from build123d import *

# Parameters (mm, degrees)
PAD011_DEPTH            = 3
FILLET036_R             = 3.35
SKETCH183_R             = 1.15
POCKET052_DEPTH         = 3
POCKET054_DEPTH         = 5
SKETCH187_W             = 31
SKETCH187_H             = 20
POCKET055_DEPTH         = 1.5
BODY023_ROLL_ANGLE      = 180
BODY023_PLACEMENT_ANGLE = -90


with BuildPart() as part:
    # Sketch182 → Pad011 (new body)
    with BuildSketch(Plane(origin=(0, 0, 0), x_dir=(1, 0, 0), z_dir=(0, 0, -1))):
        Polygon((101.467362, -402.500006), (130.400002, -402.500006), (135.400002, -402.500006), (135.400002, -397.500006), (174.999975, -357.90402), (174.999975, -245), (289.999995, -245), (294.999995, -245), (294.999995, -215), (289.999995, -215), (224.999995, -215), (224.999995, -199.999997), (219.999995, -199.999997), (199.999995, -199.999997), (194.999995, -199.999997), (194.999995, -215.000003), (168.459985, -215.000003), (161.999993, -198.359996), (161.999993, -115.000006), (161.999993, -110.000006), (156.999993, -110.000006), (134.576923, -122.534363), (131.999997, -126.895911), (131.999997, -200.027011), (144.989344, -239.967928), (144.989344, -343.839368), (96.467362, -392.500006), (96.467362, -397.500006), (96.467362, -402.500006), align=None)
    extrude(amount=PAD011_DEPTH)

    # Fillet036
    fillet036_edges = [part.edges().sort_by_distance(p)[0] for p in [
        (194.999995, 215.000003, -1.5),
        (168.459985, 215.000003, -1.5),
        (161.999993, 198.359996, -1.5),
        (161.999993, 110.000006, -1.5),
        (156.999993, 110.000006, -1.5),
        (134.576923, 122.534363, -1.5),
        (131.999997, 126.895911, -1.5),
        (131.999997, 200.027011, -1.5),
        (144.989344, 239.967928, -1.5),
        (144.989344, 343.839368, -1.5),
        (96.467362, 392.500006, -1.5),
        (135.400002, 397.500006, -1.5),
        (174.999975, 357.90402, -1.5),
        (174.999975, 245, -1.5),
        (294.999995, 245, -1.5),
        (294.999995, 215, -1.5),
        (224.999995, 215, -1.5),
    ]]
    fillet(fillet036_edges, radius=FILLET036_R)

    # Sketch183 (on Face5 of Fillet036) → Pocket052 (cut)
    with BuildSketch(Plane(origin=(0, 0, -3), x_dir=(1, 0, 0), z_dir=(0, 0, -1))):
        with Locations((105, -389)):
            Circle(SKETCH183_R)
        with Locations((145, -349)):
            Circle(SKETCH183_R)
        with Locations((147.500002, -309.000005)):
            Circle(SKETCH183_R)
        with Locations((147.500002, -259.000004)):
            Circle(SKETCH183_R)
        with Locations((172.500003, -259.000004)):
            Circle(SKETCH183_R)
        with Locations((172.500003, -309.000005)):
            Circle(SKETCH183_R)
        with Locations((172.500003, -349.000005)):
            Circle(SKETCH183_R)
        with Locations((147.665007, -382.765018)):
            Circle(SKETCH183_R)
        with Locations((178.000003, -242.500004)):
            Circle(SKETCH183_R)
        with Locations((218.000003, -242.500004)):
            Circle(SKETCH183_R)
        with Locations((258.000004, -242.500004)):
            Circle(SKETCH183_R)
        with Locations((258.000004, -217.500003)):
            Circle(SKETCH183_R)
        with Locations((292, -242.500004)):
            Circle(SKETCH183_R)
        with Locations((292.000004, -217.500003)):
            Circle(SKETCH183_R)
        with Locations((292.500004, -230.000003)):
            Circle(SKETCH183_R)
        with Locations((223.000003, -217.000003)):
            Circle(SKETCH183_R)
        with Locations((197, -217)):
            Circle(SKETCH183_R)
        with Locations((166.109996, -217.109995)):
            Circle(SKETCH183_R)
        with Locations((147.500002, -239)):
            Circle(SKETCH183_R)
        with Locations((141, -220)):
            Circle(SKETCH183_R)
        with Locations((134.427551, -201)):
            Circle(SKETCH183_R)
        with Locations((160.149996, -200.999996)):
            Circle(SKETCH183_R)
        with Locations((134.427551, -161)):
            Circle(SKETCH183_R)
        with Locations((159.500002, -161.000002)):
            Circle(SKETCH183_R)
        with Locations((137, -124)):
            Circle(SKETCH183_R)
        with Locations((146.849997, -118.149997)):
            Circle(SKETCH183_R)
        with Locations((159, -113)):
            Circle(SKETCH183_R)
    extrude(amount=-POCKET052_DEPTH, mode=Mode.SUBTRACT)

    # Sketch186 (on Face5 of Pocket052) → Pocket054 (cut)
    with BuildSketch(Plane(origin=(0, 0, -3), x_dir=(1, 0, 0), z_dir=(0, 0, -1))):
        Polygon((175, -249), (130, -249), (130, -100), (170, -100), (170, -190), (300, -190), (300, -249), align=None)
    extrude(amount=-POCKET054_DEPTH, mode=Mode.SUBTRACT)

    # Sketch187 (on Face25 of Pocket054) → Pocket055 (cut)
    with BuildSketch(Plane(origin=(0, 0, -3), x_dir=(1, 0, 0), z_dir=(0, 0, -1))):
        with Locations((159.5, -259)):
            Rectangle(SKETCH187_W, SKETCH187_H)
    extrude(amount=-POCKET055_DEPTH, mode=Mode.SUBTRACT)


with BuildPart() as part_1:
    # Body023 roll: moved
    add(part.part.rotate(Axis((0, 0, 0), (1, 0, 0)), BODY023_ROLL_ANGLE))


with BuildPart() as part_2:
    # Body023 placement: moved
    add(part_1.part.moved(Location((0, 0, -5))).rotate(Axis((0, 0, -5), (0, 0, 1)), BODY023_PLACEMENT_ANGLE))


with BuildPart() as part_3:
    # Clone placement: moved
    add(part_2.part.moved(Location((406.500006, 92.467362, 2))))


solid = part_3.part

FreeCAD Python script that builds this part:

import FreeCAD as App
import Part
import Sketcher


def edges_at(feature, points):
    """Names of the edges that pass closest to the given points."""
    edges = feature.Shape.Edges
    near = lambda p: min(range(len(edges)), key=lambda i: edges[i].distToShape(Part.Vertex(*p))[0])
    return sorted({f"Edge{near(p) + 1}" for p in points})


def add_polygon(sketch, points):
    """Adds a closed chain of lines whose ends are joined by coincident constraints."""
    first, n = sketch.GeometryCount, len(points)
    for a, b in zip(points, points[1:] + points[:1]):
        sketch.addGeometry(Part.LineSegment(App.Vector(*a, 0), App.Vector(*b, 0)), False)
    for i in range(n):
        sketch.addConstraint(Sketcher.Constraint("Coincident", first + i, 2, first + (i + 1) % n, 1))

doc = App.newDocument("Part")
body = doc.addObject("PartDesign::Body", "Body")

# Sketch on XY plane
sketch1 = doc.addObject("Sketcher::SketchObject", "Sketch")
body.addObject(sketch1)
sketch1.AttachmentSupport = (doc.XY_Plane, [""])
sketch1.MapMode = "FlatFace"
add_polygon(sketch1, [(135, 403), (135, 398), (175, 358), (175, 245), (295, 245), (295, 215), (225, 215), (225, 200), (195, 200), (195, 215), (168, 215), (162, 198), (162, 110), (157, 110), (135, 123), (132, 127), (132, 200), (145, 240), (145, 344), (96, 393), (96, 403)])  # lines 0-20
sketch1.addConstraint(Sketcher.Constraint("Vertical", 0))
sketch1.addConstraint(Sketcher.Constraint("Vertical", 2))
sketch1.addConstraint(Sketcher.Constraint("Horizontal", 3))
sketch1.addConstraint(Sketcher.Constraint("Vertical", 4))
sketch1.addConstraint(Sketcher.Constraint("Horizontal", 5))
sketch1.addConstraint(Sketcher.Constraint("Vertical", 6))
sketch1.addConstraint(Sketcher.Constraint("Horizontal", 7))
sketch1.addConstraint(Sketcher.Constraint("Vertical", 8))
sketch1.addConstraint(Sketcher.Constraint("Horizontal", 9))
sketch1.addConstraint(Sketcher.Constraint("Vertical", 11))
sketch1.addConstraint(Sketcher.Constraint("Horizontal", 12))
sketch1.addConstraint(Sketcher.Constraint("Vertical", 15))
sketch1.addConstraint(Sketcher.Constraint("Vertical", 17))
sketch1.addConstraint(Sketcher.Constraint("Vertical", 19))
sketch1.addConstraint(Sketcher.Constraint("Horizontal", 20))
sketch1.addConstraint(Sketcher.Constraint("Equal", 12, 0))
sketch1.addConstraint(Sketcher.Constraint("Equal", 7, 4))
sketch1.addConstraint(Sketcher.Constraint("DistanceX", 5, 2, 5, 1, 70.0))
sketch1.addConstraint(Sketcher.Constraint("DistanceX", 7, 2, 7, 1, 30.0))
sketch1.addConstraint(Sketcher.Constraint("DistanceX", 12, 2, 12, 1, 5.0))
sketch1.addConstraint(Sketcher.Constraint("DistanceY", 19, 1, 19, 2, 10.0))
sketch1.addConstraint(Sketcher.Constraint("Distance", 1, 56.0))
sketch1.addConstraint(Sketcher.Constraint("Distance", 16, 42.0))
sketch1.addConstraint(Sketcher.Constraint("DistanceY", -1, 1, 2, 2, 245.0))
sketch1.addConstraint(Sketcher.Constraint("DistanceX", 15, 2, 7, 2, 62.999998))
sketch1.addConstraint(Sketcher.Constraint("DistanceX", -1, 1, 0, 2, 135.400002))
sketch1.addConstraint(Sketcher.Constraint("DistanceY", 10, 2, 7, 2, 1.640001))
sketch1.addConstraint(Sketcher.Constraint("DistanceY", 15, 1, 15, 2, 73.1311))
sketch1.addConstraint(Sketcher.Constraint("Distance", 13, 25.6886))
sketch1.addConstraint(Sketcher.Constraint("DistanceX", 3, 1, 3, 2, 120.00002))
sketch1.addConstraint(Sketcher.Constraint("DistanceX", 9, 2, 9, 1, 26.54001))
sketch1.addConstraint(Sketcher.Constraint("DistanceX", 20, 1, 20, 2, 38.93264))
sketch1.addConstraint(Sketcher.Constraint("DistanceY", 2, 2, 2, 1, 112.90402))
sketch1.addConstraint(Sketcher.Constraint("DistanceY", 11, 2, 11, 1, 88.35999))
sketch1.addConstraint(Sketcher.Constraint("DistanceY", 17, 1, 17, 2, 103.87144))
sketch1.addConstraint(Sketcher.Constraint("Distance", 14, 5.06593))
sketch1.addConstraint(Sketcher.Constraint("Distance", 18, 68.71856))
sketch1.addConstraint(Sketcher.Constraint("DistanceY", 6, 2, 6, 1, 15.000003))
sketch1.addConstraint(Sketcher.Constraint("DistanceY", 8, 1, 8, 2, 15.000006))
sketch1.addConstraint(Sketcher.Constraint("DistanceY", -1, 1, 14, 2, 126.895911))
sketch1.addConstraint(Sketcher.Constraint("DistanceX", 10, 2, 9, 2, 6.459992))
sketch1.addConstraint(Sketcher.Constraint("DistanceX", 0, 2, 17, 2, 9.589342))
pad1 = doc.addObject("PartDesign::Pad", "Pad")
body.addObject(pad1)
pad1.Profile = sketch1
pad1.Length = 3
pad1.Reversed = True
doc.recompute()

fillet = doc.addObject("PartDesign::Fillet", "Fillet")
body.addObject(fillet)
fillet.Base = (pad1, edges_at(pad1, [
    (195, 215, -1.5),
    (168.46, 215, -1.5),
    (162, 198.36, -1.5),
    (162, 110, -1.5),
    (157, 110, -1.5),
    (134.577, 122.534, -1.5),
    (132, 126.896, -1.5),
    (132, 200.027, -1.5),
    (144.989, 239.968, -1.5),
    (144.989, 343.839, -1.5),
    (96.467, 392.5, -1.5),
    (135.4, 397.5, -1.5),
    (175, 357.904, -1.5),
    (175, 245, -1.5),
    (295, 245, -1.5),
    (295, 215, -1.5),
    (225, 215, -1.5),
]))
fillet.Radius = 3.35

# Sketch on XY plane
sketch2 = doc.addObject("Sketcher::SketchObject", "Sketch001")
body.addObject(sketch2)
sketch2.AttachmentSupport = (doc.XY_Plane, [""])
sketch2.MapMode = "FlatFace"
sketch2.AttachmentOffset = App.Placement(App.Vector(0, 0, -3), App.Rotation())
sketch2.addGeometry(Part.Circle(App.Vector(105, 389, 0), App.Vector(0, 0, 1), 1.1), False)
sketch2.addGeometry(Part.Circle(App.Vector(145, 349, 0), App.Vector(0, 0, 1), 1.1), False)
sketch2.addGeometry(Part.Circle(App.Vector(147.5, 309, 0), App.Vector(0, 0, 1), 1.1), False)
sketch2.addGeometry(Part.Circle(App.Vector(147.5, 259, 0), App.Vector(0, 0, 1), 1.1), False)
sketch2.addGeometry(Part.Circle(App.Vector(172.5, 259, 0), App.Vector(0, 0, 1), 1.1), False)
sketch2.addGeometry(Part.Circle(App.Vector(172.5, 309, 0), App.Vector(0, 0, 1), 1.1), False)
sketch2.addGeometry(Part.Circle(App.Vector(172.5, 349, 0), App.Vector(0, 0, 1), 1.1), False)
sketch2.addGeometry(Part.Circle(App.Vector(147.7, 382.8, 0), App.Vector(0, 0, 1), 1.1), False)
sketch2.addGeometry(Part.Circle(App.Vector(178, 242.5, 0), App.Vector(0, 0, 1), 1.1), False)
sketch2.addGeometry(Part.Circle(App.Vector(218, 242.5, 0), App.Vector(0, 0, 1), 1.1), False)
sketch2.addGeometry(Part.Circle(App.Vector(258, 242.5, 0), App.Vector(0, 0, 1), 1.1), False)
sketch2.addGeometry(Part.Circle(App.Vector(258, 217.5, 0), App.Vector(0, 0, 1), 1.1), False)
sketch2.addGeometry(Part.Circle(App.Vector(292, 242.5, 0), App.Vector(0, 0, 1), 1.1), False)
sketch2.addGeometry(Part.Circle(App.Vector(292, 217.5, 0), App.Vector(0, 0, 1), 1.1), False)
sketch2.addGeometry(Part.Circle(App.Vector(292.5, 230, 0), App.Vector(0, 0, 1), 1.1), False)
sketch2.addGeometry(Part.Circle(App.Vector(223, 217, 0), App.Vector(0, 0, 1), 1.1), False)
sketch2.addGeometry(Part.Circle(App.Vector(197, 217, 0), App.Vector(0, 0, 1), 1.1), False)
sketch2.addGeometry(Part.Circle(App.Vector(166.1, 217.1, 0), App.Vector(0, 0, 1), 1.1), False)
sketch2.addGeometry(Part.Circle(App.Vector(147.5, 239, 0), App.Vector(0, 0, 1), 1.1), False)
sketch2.addGeometry(Part.Circle(App.Vector(141, 220, 0), App.Vector(0, 0, 1), 1.1), False)
sketch2.addGeometry(Part.Circle(App.Vector(134.4, 201, 0), App.Vector(0, 0, 1), 1.1), False)
sketch2.addGeometry(Part.Circle(App.Vector(160.1, 201, 0), App.Vector(0, 0, 1), 1.1), False)
sketch2.addGeometry(Part.Circle(App.Vector(134.4, 161, 0), App.Vector(0, 0, 1), 1.1), False)
sketch2.addGeometry(Part.Circle(App.Vector(159.5, 161, 0), App.Vector(0, 0, 1), 1.1), False)
sketch2.addGeometry(Part.Circle(App.Vector(137, 124, 0), App.Vector(0, 0, 1), 1.1), False)
sketch2.addGeometry(Part.Circle(App.Vector(146.8, 118.1, 0), App.Vector(0, 0, 1), 1.1), False)
sketch2.addGeometry(Part.Circle(App.Vector(159, 113, 0), App.Vector(0, 0, 1), 1.1), False)
sketch2.addConstraint(Sketcher.Constraint("Equal", 0, 1))
sketch2.addConstraint(Sketcher.Constraint("Equal", 1, 2))
sketch2.addConstraint(Sketcher.Constraint("Equal", 2, 3))
sketch2.addConstraint(Sketcher.Constraint("Equal", 3, 4))
sketch2.addConstraint(Sketcher.Constraint("Equal", 4, 5))
sketch2.addConstraint(Sketcher.Constraint("Equal", 5, 6))
sketch2.addConstraint(Sketcher.Constraint("Equal", 6, 7))
sketch2.addConstraint(Sketcher.Constraint("Equal", 7, 8))
sketch2.addConstraint(Sketcher.Constraint("Equal", 8, 9))
sketch2.addConstraint(Sketcher.Constraint("Equal", 9, 10))
sketch2.addConstraint(Sketcher.Constraint("Equal", 10, 11))
sketch2.addConstraint(Sketcher.Constraint("Equal", 11, 12))
sketch2.addConstraint(Sketcher.Constraint("Equal", 12, 13))
sketch2.addConstraint(Sketcher.Constraint("Equal", 13, 14))
sketch2.addConstraint(Sketcher.Constraint("Equal", 14, 15))
sketch2.addConstraint(Sketcher.Constraint("Equal", 15, 16))
sketch2.addConstraint(Sketcher.Constraint("Equal", 16, 17))
sketch2.addConstraint(Sketcher.Constraint("Equal", 17, 18))
sketch2.addConstraint(Sketcher.Constraint("Equal", 18, 19))
sketch2.addConstraint(Sketcher.Constraint("Equal", 19, 20))
sketch2.addConstraint(Sketcher.Constraint("Equal", 20, 21))
sketch2.addConstraint(Sketcher.Constraint("Equal", 21, 22))
sketch2.addConstraint(Sketcher.Constraint("Equal", 22, 23))
sketch2.addConstraint(Sketcher.Constraint("Equal", 23, 24))
sketch2.addConstraint(Sketcher.Constraint("Equal", 24, 25))
sketch2.addConstraint(Sketcher.Constraint("Equal", 25, 26))
sketch2.addConstraint(Sketcher.Constraint("Horizontal", 3, 3, 4, 3))
sketch2.addConstraint(Sketcher.Constraint("Horizontal", 2, 3, 5, 3))
sketch2.addConstraint(Sketcher.Constraint("Horizontal", 8, 3, 9, 3))
sketch2.addConstraint(Sketcher.Constraint("Horizontal", 9, 3, 10, 3))
sketch2.addConstraint(Sketcher.Constraint("Horizontal", 10, 3, 12, 3))
sketch2.addConstraint(Sketcher.Constraint("Horizontal", 11, 3, 13, 3))
sketch2.addConstraint(Sketcher.Constraint("Horizontal", 22, 3, 23, 3))
sketch2.addConstraint(Sketcher.Constraint("Vertical", 2, 3, 3, 3))
sketch2.addConstraint(Sketcher.Constraint("Vertical", 4, 3, 5, 3))
sketch2.addConstraint(Sketcher.Constraint("Vertical", 5, 3, 6, 3))
sketch2.addConstraint(Sketcher.Constraint("Vertical", 10, 3, 11, 3))
sketch2.addConstraint(Sketcher.Constraint("Vertical", 3, 3, 18, 3))
sketch2.addConstraint(Sketcher.Constraint("Vertical", 20, 3, 22, 3))
sketch2.addConstraint(Sketcher.Constraint("Diameter", 0, 2.3))
sketch2.addConstraint(Sketcher.Constraint("DistanceX", -1, 1, 0, 3, 105.0))
sketch2.addConstraint(Sketcher.Constraint("DistanceY", -1, 1, 0, 3, 389.0))
sketch2.addConstraint(Sketcher.Constraint("DistanceX", -1, 1, 1, 3, 145.0))
sketch2.addConstraint(Sketcher.Constraint("DistanceY", -1, 1, 1, 3, 349.0))
sketch2.addConstraint(Sketcher.Constraint("DistanceX", -1, 1, 12, 3, 292.0))
sketch2.addConstraint(Sketcher.Constraint("DistanceX", -1, 1, 16, 3, 197.0))
sketch2.addConstraint(Sketcher.Constraint("DistanceY", -1, 1, 16, 3, 217.0))
sketch2.addConstraint(Sketcher.Constraint("DistanceY", -1, 1, 18, 3, 239.0))
sketch2.addConstraint(Sketcher.Constraint("DistanceX", -1, 1, 19, 3, 141.0))
sketch2.addConstraint(Sketcher.Constraint("DistanceY", -1, 1, 19, 3, 220.0))
sketch2.addConstraint(Sketcher.Constraint("DistanceY", -1, 1, 20, 3, 201.0))
sketch2.addConstraint(Sketcher.Constraint("DistanceY", -1, 1, 22, 3, 161.0))
sketch2.addConstraint(Sketcher.Constraint("DistanceX", -1, 1, 24, 3, 137.0))
sketch2.addConstraint(Sketcher.Constraint("DistanceY", -1, 1, 24, 3, 124.0))
sketch2.addConstraint(Sketcher.Constraint("DistanceX", -1, 1, 26, 3, 159.0))
sketch2.addConstraint(Sketcher.Constraint("DistanceY", -1, 1, 26, 3, 113.0))
sketch2.addConstraint(Sketcher.Constraint("DistanceY", 3, 3, 2, 3, 50.000001))
sketch2.addConstraint(Sketcher.Constraint("DistanceX", 3, 3, 4, 3, 25.000001))
sketch2.addConstraint(Sketcher.Constraint("DistanceY", 5, 3, 6, 3, 40.0))
sketch2.addConstraint(Sketcher.Constraint("DistanceX", 8, 3, 9, 3, 40.0))
sketch2.addConstraint(Sketcher.Constraint("DistanceX", 9, 3, 10, 3, 40.000001))
sketch2.addConstraint(Sketcher.Constraint("DistanceY", 11, 3, 10, 3, 25.000001))
sketch2.addConstraint(Sketcher.Constraint("DistanceX", 11, 3, 13, 3, 34.0))
sketch2.addConstraint(Sketcher.Constraint("DistanceX", 9, 3, 15, 3, 5.0))
sketch2.addConstraint(Sketcher.Constraint("DistanceY", 15, 3, 4, 3, 42.000001))
sketch2.addConstraint(Sketcher.Constraint("DistanceX", -1, 1, 2, 3, 147.500002))
sketch2.addConstraint(Sketcher.Constraint("DistanceX", -1, 1, 23, 3, 159.500002))
sketch2.addConstraint(Sketcher.Constraint("DistanceX", 4, 3, 8, 3, 5.5))
sketch2.addConstraint(Sketcher.Constraint("DistanceY", 8, 3, 4, 3, 16.5))
sketch2.addConstraint(Sketcher.Constraint("DistanceX", 13, 3, 14, 3, 0.5))
sketch2.addConstraint(Sketcher.Constraint("DistanceY", 13, 3, 14, 3, 12.5))
sketch2.addConstraint(Sketcher.Constraint("DistanceX", 25, 3, 21, 3, 13.299999))
sketch2.addConstraint(Sketcher.Constraint("DistanceX", 21, 3, 17, 3, 5.96))
sketch2.addConstraint(Sketcher.Constraint("DistanceY", 21, 3, 17, 3, 16.109999))
sketch2.addConstraint(Sketcher.Constraint("DistanceY", 25, 3, 21, 3, 82.849999))
sketch2.addConstraint(Sketcher.Constraint("DistanceY", -1, 1, 7, 3, 382.765018))
sketch2.addConstraint(Sketcher.Constraint("DistanceX", -1, 1, 20, 3, 134.427551))
sketch2.addConstraint(Sketcher.Constraint("DistanceY", 17, 3, 8, 3, 25.390009))
sketch2.addConstraint(Sketcher.Constraint("DistanceY", -1, 1, 2, 3, 309.000005))
sketch2.addConstraint(Sketcher.Constraint("DistanceX", -1, 1, 7, 3, 147.665007))
sketch2.addConstraint(Sketcher.Constraint("DistanceX", -1, 1, 17, 3, 166.109996))
pocket1 = doc.addObject("PartDesign::Pocket", "Pocket")
body.addObject(pocket1)
pocket1.Profile = sketch2
pocket1.Length = 3
pocket1.Reversed = True

# Sketch on XY plane
sketch3 = doc.addObject("Sketcher::SketchObject", "Sketch002")
body.addObject(sketch3)
sketch3.AttachmentSupport = (doc.XY_Plane, [""])
sketch3.MapMode = "FlatFace"
sketch3.AttachmentOffset = App.Placement(App.Vector(0, 0, -3), App.Rotation())
add_polygon(sketch3, [(130, 249), (300, 249), (300, 190), (170, 190), (170, 100), (130, 100)])  # lines 0-5
sketch3.addConstraint(Sketcher.Constraint("Horizontal", 0))
sketch3.addConstraint(Sketcher.Constraint("Vertical", 1))
sketch3.addConstraint(Sketcher.Constraint("Horizontal", 2))
sketch3.addConstraint(Sketcher.Constraint("Vertical", 3))
sketch3.addConstraint(Sketcher.Constraint("Horizontal", 4))
sketch3.addConstraint(Sketcher.Constraint("Vertical", 5))
sketch3.addConstraint(Sketcher.Constraint("DistanceX", 0, 1, 0, 2, 170.0))
sketch3.addConstraint(Sketcher.Constraint("DistanceX", 2, 2, 2, 1, 130.0))
sketch3.addConstraint(Sketcher.Constraint("DistanceY", 1, 2, 1, 1, 59.0))
sketch3.addConstraint(Sketcher.Constraint("DistanceY", 3, 2, 3, 1, 90.0))
sketch3.addConstraint(Sketcher.Constraint("DistanceX", -1, 1, 0, 2, 300.0))
sketch3.addConstraint(Sketcher.Constraint("DistanceY", -1, 1, 0, 2, 249.0))
pocket2 = doc.addObject("PartDesign::Pocket", "Pocket001")
body.addObject(pocket2)
pocket2.Profile = sketch3
pocket2.Length = 5
pocket2.Reversed = True

# Sketch on XY plane
sketch4 = doc.addObject("Sketcher::SketchObject", "Sketch003")
body.addObject(sketch4)
sketch4.AttachmentSupport = (doc.XY_Plane, [""])
sketch4.MapMode = "FlatFace"
sketch4.AttachmentOffset = App.Placement(App.Vector(0, 0, -3), App.Rotation())
add_polygon(sketch4, [(144, 249), (144, 269), (175, 269), (175, 249)])  # lines 0-3
sketch4.addConstraint(Sketcher.Constraint("Vertical", 0))
sketch4.addConstraint(Sketcher.Constraint("Horizontal", 1))
sketch4.addConstraint(Sketcher.Constraint("Vertical", 2))
sketch4.addConstraint(Sketcher.Constraint("Horizontal", 3))
sketch4.addConstraint(Sketcher.Constraint("DistanceX", 1, 1, 1, 2, 31.0))
sketch4.addConstraint(Sketcher.Constraint("DistanceY", 0, 1, 0, 2, 20.0))
sketch4.addConstraint(Sketcher.Constraint("DistanceX", -1, 1, 0, 2, 144.0))
sketch4.addConstraint(Sketcher.Constraint("DistanceY", -1, 1, 0, 2, 269.0))
pocket3 = doc.addObject("PartDesign::Pocket", "Pocket002")
body.addObject(pocket3)
pocket3.Profile = sketch4
pocket3.Length = 1.5
pocket3.Reversed = True
body2 = doc.addObject("PartDesign::Body", "Body001")
doc.recompute()

body.Placement = App.Placement(App.Vector(0, 0, 0), App.Rotation(App.Vector(1, 0, 0), 180))
boolean = doc.addObject("PartDesign::Boolean", "Boolean")
body2.addObject(boolean)
boolean.Type = "Fuse"
boolean.addObjects([body])
body3 = doc.addObject("PartDesign::Body", "Body002")
doc.recompute()

body2.Placement = App.Placement(App.Vector(0, 0, -5), App.Rotation(App.Vector(0, 0, 1), 270))
boolean2 = doc.addObject("PartDesign::Boolean", "Boolean001")
body3.addObject(boolean2)
boolean2.Type = "Fuse"
boolean2.addObjects([body2])
body4 = doc.addObject("PartDesign::Body", "Body003")
doc.recompute()

body3.Placement = App.Placement(App.Vector(406.500006, 92.467362, 2), App.Rotation(App.Vector(0, 0, 1), 0))
boolean3 = doc.addObject("PartDesign::Boolean", "Boolean002")
body4.addObject(boolean3)
boolean3.Type = "Fuse"
boolean3.addObjects([body3])

doc.recompute()
